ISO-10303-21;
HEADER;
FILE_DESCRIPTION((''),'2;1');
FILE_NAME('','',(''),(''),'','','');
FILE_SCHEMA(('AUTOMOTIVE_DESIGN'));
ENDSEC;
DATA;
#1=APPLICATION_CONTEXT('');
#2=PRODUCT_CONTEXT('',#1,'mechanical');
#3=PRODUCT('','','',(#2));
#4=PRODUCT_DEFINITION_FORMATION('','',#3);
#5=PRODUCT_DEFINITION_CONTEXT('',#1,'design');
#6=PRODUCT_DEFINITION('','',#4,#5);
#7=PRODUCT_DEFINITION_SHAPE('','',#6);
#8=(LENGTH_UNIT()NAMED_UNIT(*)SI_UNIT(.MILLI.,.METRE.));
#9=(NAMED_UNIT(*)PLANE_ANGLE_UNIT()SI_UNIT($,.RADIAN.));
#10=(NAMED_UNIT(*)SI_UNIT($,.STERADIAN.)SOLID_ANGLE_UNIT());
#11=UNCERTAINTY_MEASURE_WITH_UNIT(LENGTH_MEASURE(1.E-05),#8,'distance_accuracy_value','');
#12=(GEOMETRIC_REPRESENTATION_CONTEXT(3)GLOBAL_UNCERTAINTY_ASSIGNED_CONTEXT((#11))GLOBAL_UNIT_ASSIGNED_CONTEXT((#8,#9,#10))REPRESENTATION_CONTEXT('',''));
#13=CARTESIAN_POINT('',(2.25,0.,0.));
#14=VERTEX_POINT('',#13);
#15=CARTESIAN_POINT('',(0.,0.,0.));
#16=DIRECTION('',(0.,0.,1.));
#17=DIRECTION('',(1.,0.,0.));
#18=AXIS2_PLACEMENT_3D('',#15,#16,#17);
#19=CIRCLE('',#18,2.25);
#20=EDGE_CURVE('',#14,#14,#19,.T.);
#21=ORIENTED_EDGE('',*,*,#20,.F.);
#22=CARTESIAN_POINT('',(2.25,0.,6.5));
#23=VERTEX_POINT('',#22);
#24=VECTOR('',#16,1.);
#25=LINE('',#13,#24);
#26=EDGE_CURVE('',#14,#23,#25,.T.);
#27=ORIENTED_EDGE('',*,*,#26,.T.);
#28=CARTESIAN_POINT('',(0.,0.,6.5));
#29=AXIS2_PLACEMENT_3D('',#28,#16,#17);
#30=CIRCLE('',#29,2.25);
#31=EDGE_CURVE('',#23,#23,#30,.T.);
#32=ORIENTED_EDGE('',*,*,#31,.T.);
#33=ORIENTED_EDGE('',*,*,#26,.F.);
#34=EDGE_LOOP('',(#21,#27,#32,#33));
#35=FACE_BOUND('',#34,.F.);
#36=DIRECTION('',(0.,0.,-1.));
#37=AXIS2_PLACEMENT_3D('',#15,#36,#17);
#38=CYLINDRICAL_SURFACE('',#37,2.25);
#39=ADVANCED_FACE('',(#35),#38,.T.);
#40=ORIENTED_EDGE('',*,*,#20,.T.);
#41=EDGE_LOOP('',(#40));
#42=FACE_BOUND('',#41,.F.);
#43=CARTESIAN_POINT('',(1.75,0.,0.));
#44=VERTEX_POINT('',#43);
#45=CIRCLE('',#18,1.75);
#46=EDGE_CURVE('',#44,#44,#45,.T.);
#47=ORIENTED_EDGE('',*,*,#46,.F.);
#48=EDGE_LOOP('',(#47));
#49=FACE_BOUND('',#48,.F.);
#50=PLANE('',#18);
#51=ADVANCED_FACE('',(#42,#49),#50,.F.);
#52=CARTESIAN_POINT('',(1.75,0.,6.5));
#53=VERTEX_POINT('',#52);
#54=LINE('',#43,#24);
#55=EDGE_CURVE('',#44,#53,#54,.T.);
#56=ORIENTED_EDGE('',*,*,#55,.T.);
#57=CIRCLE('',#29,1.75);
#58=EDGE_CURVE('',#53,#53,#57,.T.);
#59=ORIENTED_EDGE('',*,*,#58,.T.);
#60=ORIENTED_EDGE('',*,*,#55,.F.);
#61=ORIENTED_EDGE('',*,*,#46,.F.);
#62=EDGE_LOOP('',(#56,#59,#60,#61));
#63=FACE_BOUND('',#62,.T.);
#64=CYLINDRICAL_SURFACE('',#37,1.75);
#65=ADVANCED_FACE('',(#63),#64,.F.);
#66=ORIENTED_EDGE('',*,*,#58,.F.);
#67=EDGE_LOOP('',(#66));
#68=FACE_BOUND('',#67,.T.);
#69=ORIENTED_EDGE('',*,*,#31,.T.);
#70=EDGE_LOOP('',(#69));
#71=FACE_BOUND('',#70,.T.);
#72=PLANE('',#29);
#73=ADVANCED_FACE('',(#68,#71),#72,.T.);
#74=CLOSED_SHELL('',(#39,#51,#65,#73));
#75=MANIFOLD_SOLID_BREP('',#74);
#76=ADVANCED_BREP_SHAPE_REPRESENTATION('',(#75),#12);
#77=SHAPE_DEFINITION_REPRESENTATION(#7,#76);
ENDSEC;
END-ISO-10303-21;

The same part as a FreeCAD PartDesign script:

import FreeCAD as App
import Part
import Sketcher
from FreeCAD import Vector
Q = App.Units.Quantity

doc = App.newDocument("Part")
body = doc.addObject("PartDesign::Body", "Body")

# Sketch on XY plane
sketch1 = doc.addObject("Sketcher::SketchObject", "Sketch")
body.addObject(sketch1)
sketch1.AttachmentSupport = (doc.XY_Plane, [""])
sketch1.MapMode = "FlatFace"
sketch1.addGeometry([
    Part.Circle(Vector(0, 0, 0), Vector(0, 0, 1), 2.2),
    Part.Circle(Vector(0, 0, 0), Vector(0, 0, 1), 1.8),
], False)
sketch1.addConstraint([
    Sketcher.Constraint("Coincident", 0, 3, -1, 1),
    Sketcher.Constraint("Coincident", 1, 3, -1, 1),
    Sketcher.Constraint("Diameter", 0, Q("4.5 mm")),
    Sketcher.Constraint("Diameter", 1, Q("3.5 mm")),
])
pad1 = doc.addObject("PartDesign::Pad", "Pad")
body.addObject(pad1)
pad1.Profile = sketch1
pad1.Length = 6.5

doc.recompute()
